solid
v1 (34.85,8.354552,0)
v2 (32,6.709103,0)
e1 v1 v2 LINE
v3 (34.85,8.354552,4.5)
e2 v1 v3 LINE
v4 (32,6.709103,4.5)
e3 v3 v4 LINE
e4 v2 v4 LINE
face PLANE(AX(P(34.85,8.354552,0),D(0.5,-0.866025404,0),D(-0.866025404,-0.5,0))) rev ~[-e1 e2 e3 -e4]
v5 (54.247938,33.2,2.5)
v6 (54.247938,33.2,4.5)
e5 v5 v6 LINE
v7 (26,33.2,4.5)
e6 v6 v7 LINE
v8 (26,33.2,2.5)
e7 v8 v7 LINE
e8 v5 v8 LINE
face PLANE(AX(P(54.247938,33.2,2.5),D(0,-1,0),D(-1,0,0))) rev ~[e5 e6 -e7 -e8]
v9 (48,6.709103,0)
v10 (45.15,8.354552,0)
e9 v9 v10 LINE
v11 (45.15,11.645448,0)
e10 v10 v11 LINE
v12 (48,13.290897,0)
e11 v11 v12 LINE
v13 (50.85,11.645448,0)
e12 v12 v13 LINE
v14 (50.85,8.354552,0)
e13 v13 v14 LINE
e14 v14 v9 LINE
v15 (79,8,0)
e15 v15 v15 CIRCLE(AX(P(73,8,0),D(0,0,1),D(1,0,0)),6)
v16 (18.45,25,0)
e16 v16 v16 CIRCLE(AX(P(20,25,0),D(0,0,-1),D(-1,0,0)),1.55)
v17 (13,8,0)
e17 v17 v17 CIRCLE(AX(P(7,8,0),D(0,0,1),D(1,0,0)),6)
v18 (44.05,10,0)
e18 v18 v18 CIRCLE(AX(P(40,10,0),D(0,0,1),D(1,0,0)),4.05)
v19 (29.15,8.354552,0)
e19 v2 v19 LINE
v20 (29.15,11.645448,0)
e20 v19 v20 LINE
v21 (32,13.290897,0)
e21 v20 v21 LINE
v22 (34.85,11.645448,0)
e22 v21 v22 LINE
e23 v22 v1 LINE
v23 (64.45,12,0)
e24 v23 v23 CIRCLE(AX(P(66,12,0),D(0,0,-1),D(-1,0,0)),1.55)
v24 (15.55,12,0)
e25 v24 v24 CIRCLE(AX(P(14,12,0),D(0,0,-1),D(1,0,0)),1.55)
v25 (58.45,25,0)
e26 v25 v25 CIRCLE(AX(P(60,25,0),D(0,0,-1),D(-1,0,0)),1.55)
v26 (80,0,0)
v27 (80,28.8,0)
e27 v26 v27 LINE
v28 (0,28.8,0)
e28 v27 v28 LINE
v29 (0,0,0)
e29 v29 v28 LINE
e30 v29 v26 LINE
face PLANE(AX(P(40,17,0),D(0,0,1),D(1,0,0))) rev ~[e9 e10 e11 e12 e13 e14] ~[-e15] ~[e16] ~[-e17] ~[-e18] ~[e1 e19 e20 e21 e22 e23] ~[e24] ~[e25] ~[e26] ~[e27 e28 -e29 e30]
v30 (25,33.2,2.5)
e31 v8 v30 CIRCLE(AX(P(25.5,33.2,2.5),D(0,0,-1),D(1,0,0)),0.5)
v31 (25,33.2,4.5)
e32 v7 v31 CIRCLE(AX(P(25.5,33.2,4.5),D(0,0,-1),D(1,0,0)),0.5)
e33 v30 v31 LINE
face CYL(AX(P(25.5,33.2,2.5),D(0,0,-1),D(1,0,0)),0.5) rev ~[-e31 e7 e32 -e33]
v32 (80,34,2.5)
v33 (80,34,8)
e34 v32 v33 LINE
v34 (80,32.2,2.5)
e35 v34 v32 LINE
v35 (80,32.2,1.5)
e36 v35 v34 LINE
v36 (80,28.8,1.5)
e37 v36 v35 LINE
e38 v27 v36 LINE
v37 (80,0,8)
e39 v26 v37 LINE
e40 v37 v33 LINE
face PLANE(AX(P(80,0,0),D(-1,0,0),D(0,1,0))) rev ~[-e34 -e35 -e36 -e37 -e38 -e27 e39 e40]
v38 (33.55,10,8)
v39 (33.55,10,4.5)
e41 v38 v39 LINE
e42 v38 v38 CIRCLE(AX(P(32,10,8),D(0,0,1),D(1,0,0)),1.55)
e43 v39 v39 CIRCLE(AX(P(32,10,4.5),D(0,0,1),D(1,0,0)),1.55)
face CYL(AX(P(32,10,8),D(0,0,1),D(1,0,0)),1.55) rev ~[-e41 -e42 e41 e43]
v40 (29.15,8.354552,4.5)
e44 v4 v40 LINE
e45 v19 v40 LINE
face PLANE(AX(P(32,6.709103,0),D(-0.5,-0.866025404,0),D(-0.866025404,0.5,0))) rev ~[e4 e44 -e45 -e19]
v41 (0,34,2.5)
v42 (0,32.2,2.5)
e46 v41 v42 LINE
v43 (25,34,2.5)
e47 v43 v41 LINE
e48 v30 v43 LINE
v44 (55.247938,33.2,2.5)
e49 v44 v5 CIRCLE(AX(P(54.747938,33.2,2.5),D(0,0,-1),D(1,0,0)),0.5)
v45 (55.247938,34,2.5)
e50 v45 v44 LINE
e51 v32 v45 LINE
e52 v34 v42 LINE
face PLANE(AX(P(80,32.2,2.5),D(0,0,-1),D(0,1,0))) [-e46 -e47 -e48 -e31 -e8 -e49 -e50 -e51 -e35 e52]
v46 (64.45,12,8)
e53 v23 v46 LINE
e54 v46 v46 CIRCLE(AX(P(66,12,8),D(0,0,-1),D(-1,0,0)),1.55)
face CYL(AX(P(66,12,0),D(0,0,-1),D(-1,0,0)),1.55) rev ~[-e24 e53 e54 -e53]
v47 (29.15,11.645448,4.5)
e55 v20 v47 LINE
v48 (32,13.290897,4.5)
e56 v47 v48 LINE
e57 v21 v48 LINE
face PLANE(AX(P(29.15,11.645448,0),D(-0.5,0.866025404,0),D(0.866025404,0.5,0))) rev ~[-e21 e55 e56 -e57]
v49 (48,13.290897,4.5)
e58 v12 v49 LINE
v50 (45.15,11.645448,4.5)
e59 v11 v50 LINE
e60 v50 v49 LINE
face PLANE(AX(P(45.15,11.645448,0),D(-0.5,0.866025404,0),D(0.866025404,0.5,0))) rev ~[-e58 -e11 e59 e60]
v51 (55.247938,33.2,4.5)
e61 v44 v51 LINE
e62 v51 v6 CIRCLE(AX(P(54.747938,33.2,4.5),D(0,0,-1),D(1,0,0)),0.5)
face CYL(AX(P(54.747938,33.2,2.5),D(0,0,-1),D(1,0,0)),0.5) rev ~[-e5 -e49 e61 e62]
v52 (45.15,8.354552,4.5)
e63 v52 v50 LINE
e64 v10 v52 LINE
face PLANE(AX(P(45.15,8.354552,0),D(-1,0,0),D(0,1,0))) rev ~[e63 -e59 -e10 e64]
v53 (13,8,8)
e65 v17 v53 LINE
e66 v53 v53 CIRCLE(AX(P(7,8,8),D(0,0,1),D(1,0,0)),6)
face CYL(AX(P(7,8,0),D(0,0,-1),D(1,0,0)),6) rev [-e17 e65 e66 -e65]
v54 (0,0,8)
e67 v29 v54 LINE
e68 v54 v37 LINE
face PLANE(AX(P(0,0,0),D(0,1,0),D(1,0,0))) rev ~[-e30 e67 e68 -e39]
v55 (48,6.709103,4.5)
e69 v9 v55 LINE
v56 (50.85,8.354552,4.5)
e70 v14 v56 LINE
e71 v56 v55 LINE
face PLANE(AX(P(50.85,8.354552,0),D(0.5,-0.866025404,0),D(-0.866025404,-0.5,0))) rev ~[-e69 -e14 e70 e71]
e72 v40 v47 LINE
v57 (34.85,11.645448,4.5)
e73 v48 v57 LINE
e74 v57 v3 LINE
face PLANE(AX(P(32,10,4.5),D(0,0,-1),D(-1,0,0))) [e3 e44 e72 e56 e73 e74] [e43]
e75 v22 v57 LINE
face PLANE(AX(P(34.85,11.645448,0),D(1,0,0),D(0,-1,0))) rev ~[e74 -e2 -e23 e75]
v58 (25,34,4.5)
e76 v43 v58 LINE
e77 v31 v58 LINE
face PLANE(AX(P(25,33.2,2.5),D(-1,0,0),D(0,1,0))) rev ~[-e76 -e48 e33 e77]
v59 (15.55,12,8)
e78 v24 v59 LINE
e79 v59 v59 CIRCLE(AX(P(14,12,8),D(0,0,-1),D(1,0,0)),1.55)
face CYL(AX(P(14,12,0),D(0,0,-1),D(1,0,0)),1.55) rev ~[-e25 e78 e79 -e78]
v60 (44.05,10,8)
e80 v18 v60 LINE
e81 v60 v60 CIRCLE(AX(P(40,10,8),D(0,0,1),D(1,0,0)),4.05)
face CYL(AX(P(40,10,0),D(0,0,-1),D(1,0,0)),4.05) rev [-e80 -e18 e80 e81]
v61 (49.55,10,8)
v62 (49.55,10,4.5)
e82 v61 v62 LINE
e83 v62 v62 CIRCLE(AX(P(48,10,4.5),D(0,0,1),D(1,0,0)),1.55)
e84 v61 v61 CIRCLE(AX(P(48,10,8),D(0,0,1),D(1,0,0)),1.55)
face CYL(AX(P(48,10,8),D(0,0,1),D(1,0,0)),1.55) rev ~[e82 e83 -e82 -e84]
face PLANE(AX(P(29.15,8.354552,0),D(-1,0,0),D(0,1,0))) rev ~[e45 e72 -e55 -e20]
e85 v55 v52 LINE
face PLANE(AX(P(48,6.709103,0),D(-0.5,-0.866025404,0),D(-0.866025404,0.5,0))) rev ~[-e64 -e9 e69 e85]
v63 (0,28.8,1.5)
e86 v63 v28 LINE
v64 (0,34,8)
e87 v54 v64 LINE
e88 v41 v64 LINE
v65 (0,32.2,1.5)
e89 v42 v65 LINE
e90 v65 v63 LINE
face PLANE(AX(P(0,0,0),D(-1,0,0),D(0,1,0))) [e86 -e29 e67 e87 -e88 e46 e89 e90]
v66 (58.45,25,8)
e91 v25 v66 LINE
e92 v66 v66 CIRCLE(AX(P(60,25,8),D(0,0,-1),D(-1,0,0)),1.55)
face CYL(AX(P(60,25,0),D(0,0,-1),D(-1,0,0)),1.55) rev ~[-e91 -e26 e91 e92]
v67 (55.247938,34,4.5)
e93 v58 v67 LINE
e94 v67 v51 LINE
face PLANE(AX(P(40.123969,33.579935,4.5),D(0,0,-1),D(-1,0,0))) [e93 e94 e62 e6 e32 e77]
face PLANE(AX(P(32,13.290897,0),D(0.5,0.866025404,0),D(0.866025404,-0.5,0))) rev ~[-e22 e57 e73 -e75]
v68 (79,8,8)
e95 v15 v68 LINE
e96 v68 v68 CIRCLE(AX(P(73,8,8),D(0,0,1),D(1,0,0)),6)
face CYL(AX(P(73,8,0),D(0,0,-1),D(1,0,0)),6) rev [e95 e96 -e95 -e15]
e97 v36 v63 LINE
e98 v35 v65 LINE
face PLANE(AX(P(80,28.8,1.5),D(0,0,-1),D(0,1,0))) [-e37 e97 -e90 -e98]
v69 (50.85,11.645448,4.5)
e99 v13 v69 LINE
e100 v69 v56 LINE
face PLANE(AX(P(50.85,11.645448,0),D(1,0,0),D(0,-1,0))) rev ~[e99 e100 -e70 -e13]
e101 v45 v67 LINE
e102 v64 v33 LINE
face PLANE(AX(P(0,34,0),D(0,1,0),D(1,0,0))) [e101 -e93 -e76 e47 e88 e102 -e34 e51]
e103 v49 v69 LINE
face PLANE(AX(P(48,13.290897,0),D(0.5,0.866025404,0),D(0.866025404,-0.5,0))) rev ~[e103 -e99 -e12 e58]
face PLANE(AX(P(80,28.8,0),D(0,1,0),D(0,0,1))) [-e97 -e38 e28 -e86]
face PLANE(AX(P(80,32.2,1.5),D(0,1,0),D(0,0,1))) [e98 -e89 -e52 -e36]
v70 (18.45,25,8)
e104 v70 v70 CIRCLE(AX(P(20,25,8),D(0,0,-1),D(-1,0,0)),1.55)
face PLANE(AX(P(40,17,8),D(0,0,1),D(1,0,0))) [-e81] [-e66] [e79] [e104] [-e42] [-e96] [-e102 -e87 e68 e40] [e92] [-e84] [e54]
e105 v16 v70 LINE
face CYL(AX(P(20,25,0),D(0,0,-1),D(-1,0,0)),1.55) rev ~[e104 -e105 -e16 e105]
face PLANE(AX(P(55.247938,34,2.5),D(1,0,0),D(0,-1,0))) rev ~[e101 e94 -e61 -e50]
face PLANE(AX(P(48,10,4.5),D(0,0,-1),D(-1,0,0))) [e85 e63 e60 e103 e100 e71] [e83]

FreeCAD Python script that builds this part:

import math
import FreeCAD as App
import Part
import Sketcher

V = App.Vector
Q = App.Units.Quantity

doc = App.newDocument("Part")
body = doc.addObject("PartDesign::Body", "Body")

sketch1 = doc.addObject("Sketcher::SketchObject", "Sketch")
body.addObject(sketch1)
sketch1.AttachmentSupport = (doc.XY_Plane, [""])
sketch1.MapMode = "FlatFace"
sketch1.addGeometry([
    Part.LineSegment(V(0, 34, 0), V(0, 0, 0)),
    Part.LineSegment(V(0, 0, 0), V(80, 0, 0)),
    Part.LineSegment(V(80, 0, 0), V(80, 34, 0)),
    Part.LineSegment(V(80, 34, 0), V(0, 34, 0)),
    Part.Circle(V(7, 8, 0), V(0, 0, 1), 6),
    Part.Circle(V(73, 8, 0), V(0, 0, 1), 6),
    Part.Circle(V(40, 10, 0), V(0, 0, 1), 4),
], False)
sketch1.addConstraint([
    Sketcher.Constraint("Coincident", 0, 2, 1, 1),
    Sketcher.Constraint("Coincident", 1, 2, 2, 1),
    Sketcher.Constraint("Coincident", 2, 2, 3, 1),
    Sketcher.Constraint("Coincident", 3, 2, 0, 1),
    Sketcher.Constraint("Vertical", 0),
    Sketcher.Constraint("Horizontal", 1),
    Sketcher.Constraint("Vertical", 2),
    Sketcher.Constraint("Horizontal", 3),
    Sketcher.Constraint("Coincident", 0, 2, -1, 1),
    Sketcher.Constraint("Equal", 4, 5),
    Sketcher.Constraint("Horizontal", 4, 3, 5, 3),
    Sketcher.Constraint("Diameter", 4, Q("12 mm")),
    Sketcher.Constraint("Diameter", 6, Q("8.1 mm")),
    Sketcher.Constraint("DistanceX", 1, 1, 1, 2, Q("80 mm")),
    Sketcher.Constraint("DistanceY", 0, 2, 0, 1, Q("34 mm")),
    Sketcher.Constraint("DistanceX", -1, 1, 4, 3, Q("7 mm")),
    Sketcher.Constraint("DistanceY", -1, 1, 4, 3, Q("8 mm")),
    Sketcher.Constraint("DistanceX", -1, 1, 5, 3, Q("73 mm")),
    Sketcher.Constraint("DistanceX", -1, 1, 6, 3, Q("40 mm")),
    Sketcher.Constraint("DistanceY", -1, 1, 6, 3, Q("10 mm")),
])
pad1 = doc.addObject("PartDesign::Pad", "Pad")
body.addObject(pad1)
pad1.Profile = sketch1
pad1.Length = 8

sketch2 = doc.addObject("Sketcher::SketchObject", "Sketch001")
body.addObject(sketch2)
sketch2.AttachmentSupport = (doc.YZ_Plane, [""])
sketch2.MapMode = "FlatFace"
sketch2.AttachmentOffset = App.Placement(V(0, 0, 80), App.Rotation())
sketch2.addGeometry([
    Part.LineSegment(V(32.2, 2.5, 0), V(32.2, 1.5, 0)),
    Part.LineSegment(V(32.2, 1.5, 0), V(28.8, 1.5, 0)),
    Part.LineSegment(V(28.8, 1.5, 0), V(28.8, 0, 0)),
    Part.LineSegment(V(28.8, 0, 0), V(34, 0, 0)),
    Part.LineSegment(V(34, 0, 0), V(34, 2.5, 0)),
    Part.LineSegment(V(34, 2.5, 0), V(32.2, 2.5, 0)),
], False)
sketch2.addConstraint([
    Sketcher.Constraint("Coincident", 0, 2, 1, 1),
    Sketcher.Constraint("Coincident", 1, 2, 2, 1),
    Sketcher.Constraint("Coincident", 2, 2, 3, 1),
    Sketcher.Constraint("Coincident", 3, 2, 4, 1),
    Sketcher.Constraint("Coincident", 4, 2, 5, 1),
    Sketcher.Constraint("Coincident", 5, 2, 0, 1),
    Sketcher.Constraint("Vertical", 0),
    Sketcher.Constraint("Horizontal", 1),
    Sketcher.Constraint("Vertical", 2),
    Sketcher.Constraint("Horizontal", 3),
    Sketcher.Constraint("Vertical", 4),
    Sketcher.Constraint("Horizontal", 5),
    Sketcher.Constraint("PointOnObject", 2, 2, -1),
    Sketcher.Constraint("DistanceY", 0, 2, 0, 1, Q("1 mm")),
    Sketcher.Constraint("DistanceX", 1, 2, 1, 1, Q("3.4 mm")),
    Sketcher.Constraint("DistanceX", 3, 1, 3, 2, Q("5.2 mm")),
    Sketcher.Constraint("DistanceY", 2, 2, 2, 1, Q("1.5 mm")),
    Sketcher.Constraint("DistanceX", -1, 1, 3, 2, Q("34 mm")),
])
pocket1 = doc.addObject("PartDesign::Pocket", "Pocket")
body.addObject(pocket1)
pocket1.Profile = sketch2
pocket1.Type = "ThroughAll"

sketch3 = doc.addObject("Sketcher::SketchObject", "Sketch002")
body.addObject(sketch3)
sketch3.AttachmentSupport = (doc.XY_Plane, [""])
sketch3.MapMode = "FlatFace"
sketch3.AttachmentOffset = App.Placement(V(0, 0, 8), App.Rotation())
sketch3.addGeometry([
    Part.Circle(V(48, 10, 0), V(0, 0, 1), 1.6),
    Part.Circle(V(32, 10, 0), V(0, 0, 1), 1.6),
], False)
sketch3.addConstraint([
    Sketcher.Constraint("Equal", 0, 1),
    Sketcher.Constraint("Horizontal", 0, 3, 1, 3),
    Sketcher.Constraint("Diameter", 0, Q("3.1 mm")),
    Sketcher.Constraint("DistanceX", -1, 1, 0, 3, Q("48 mm")),
    Sketcher.Constraint("DistanceY", -1, 1, 0, 3, Q("10 mm")),
    Sketcher.Constraint("DistanceX", -1, 1, 1, 3, Q("32 mm")),
])
pocket2 = doc.addObject("PartDesign::Pocket", "Pocket001")
body.addObject(pocket2)
pocket2.Profile = sketch3
pocket2.Type = "ThroughAll"

sketch4 = doc.addObject("Sketcher::SketchObject", "Sketch003")
body.addObject(sketch4)
sketch4.AttachmentSupport = (doc.XY_Plane, [""])
sketch4.MapMode = "FlatFace"
sketch4.addGeometry([
    Part.LineSegment(V(45.1, 8.4, 0), V(45.1, 11.6, 0)),
    Part.LineSegment(V(45.1, 11.6, 0), V(48, 13.3, 0)),
    Part.LineSegment(V(48, 13.3, 0), V(50.9, 11.6, 0)),
    Part.LineSegment(V(50.9, 11.6, 0), V(50.9, 8.4, 0)),
    Part.LineSegment(V(50.9, 8.4, 0), V(48, 6.7, 0)),
    Part.LineSegment(V(48, 6.7, 0), V(45.1, 8.4, 0)),
    Part.LineSegment(V(34.9, 8.4, 0), V(32, 6.7, 0)),
    Part.LineSegment(V(32, 6.7, 0), V(29.1, 8.4, 0)),
    Part.LineSegment(V(29.1, 8.4, 0), V(29.1, 11.6, 0)),
    Part.LineSegment(V(29.1, 11.6, 0), V(32, 13.3, 0)),
    Part.LineSegment(V(32, 13.3, 0), V(34.9, 11.6, 0)),
    Part.LineSegment(V(34.9, 11.6, 0), V(34.9, 8.4, 0)),
], False)
sketch4.addConstraint([
    Sketcher.Constraint("Coincident", 0, 2, 1, 1),
    Sketcher.Constraint("Coincident", 1, 2, 2, 1),
    Sketcher.Constraint("Coincident", 2, 2, 3, 1),
    Sketcher.Constraint("Coincident", 3, 2, 4, 1),
    Sketcher.Constraint("Coincident", 4, 2, 5, 1),
    Sketcher.Constraint("Coincident", 5, 2, 0, 1),
    Sketcher.Constraint("Coincident", 6, 2, 7, 1),
    Sketcher.Constraint("Coincident", 7, 2, 8, 1),
    Sketcher.Constraint("Coincident", 8, 2, 9, 1),
    Sketcher.Constraint("Coincident", 9, 2, 10, 1),
    Sketcher.Constraint("Coincident", 10, 2, 11, 1),
    Sketcher.Constraint("Coincident", 11, 2, 6, 1),
    Sketcher.Constraint("Vertical", 0),
    Sketcher.Constraint("Vertical", 3),
    Sketcher.Constraint("Vertical", 8),
    Sketcher.Constraint("Vertical", 11),
    Sketcher.Constraint("Parallel", 1, 4),
    Sketcher.Constraint("Parallel", 2, 5),
    Sketcher.Constraint("Parallel", 4, 6),
    Sketcher.Constraint("Parallel", 5, 7),
    Sketcher.Constraint("Parallel", 6, 9),
    Sketcher.Constraint("Parallel", 7, 10),
    Sketcher.Constraint("Horizontal", 0, 2, 2, 2),
    Sketcher.Constraint("Horizontal", 3, 2, 5, 2),
    Sketcher.Constraint("Horizontal", 4, 2, 6, 2),
    Sketcher.Constraint("Horizontal", 5, 2, 7, 2),
    Sketcher.Constraint("Horizontal", 2, 2, 8, 2),
    Sketcher.Constraint("Horizontal", 1, 2, 9, 2),
    Sketcher.Constraint("Horizontal", 8, 2, 10, 2),
    Sketcher.Constraint("Vertical", 1, 2, 4, 2),
    Sketcher.Constraint("Angle", 1, Q("30 deg")),
    Sketcher.Constraint("DistanceX", -1, 1, 1, 2, Q("48 mm")),
    Sketcher.Constraint("DistanceX", -1, 1, 6, 2, Q("32 mm")),
    Sketcher.Constraint("DistanceX", 0, 2, 2, 2, Q("5.7 mm")),
    Sketcher.Constraint("DistanceY", 0, 1, 0, 2, Q("3.290897 mm")),
    Sketcher.Constraint("DistanceY", -1, 1, 0, 2, Q("11.645448 mm")),
])
pocket3 = doc.addObject("PartDesign::Pocket", "Pocket002")
body.addObject(pocket3)
pocket3.Profile = sketch4
pocket3.Length = 4.5
pocket3.Reversed = True

sketch5 = doc.addObject("Sketcher::SketchObject", "Sketch004")
body.addObject(sketch5)
sketch5.AttachmentSupport = (doc.XY_Plane, [""])
sketch5.MapMode = "FlatFace"
sketch5.addGeometry([
    Part.Circle(V(60, 25, 0), V(0, 0, 1), 1.6),
    Part.Circle(V(20, 25, 0), V(0, 0, 1), 1.6),
], False)
sketch5.addConstraint([
    Sketcher.Constraint("Equal", 0, 1),
    Sketcher.Constraint("Horizontal", 0, 3, 1, 3),
    Sketcher.Constraint("Diameter", 0, Q("3.1 mm")),
    Sketcher.Constraint("DistanceX", -1, 1, 0, 3, Q("60 mm")),
    Sketcher.Constraint("DistanceY", -1, 1, 0, 3, Q("25 mm")),
    Sketcher.Constraint("DistanceX", -1, 1, 1, 3, Q("20 mm")),
])
pocket4 = doc.addObject("PartDesign::Pocket", "Pocket003")
body.addObject(pocket4)
pocket4.Profile = sketch5
pocket4.Type = "ThroughAll"
pocket4.Reversed = True

sketch6 = doc.addObject("Sketcher::SketchObject", "Sketch005")
body.addObject(sketch6)
sketch6.AttachmentSupport = (doc.XY_Plane, [""])
sketch6.MapMode = "FlatFace"
sketch6.AttachmentOffset = App.Placement(V(0, 0, 2.5), App.Rotation())
sketch6.addGeometry([
    Part.LineSegment(V(25, 34, 0), V(55.2, 34, 0)),
    Part.LineSegment(V(55.2, 34, 0), V(55.2, 33.2, 0)),
    Part.ArcOfCircle(Part.Circle(V(54.7, 33.2, 0), V(0, 0, 1), 0.5), math.radians(180), math.radians(360)),
    Part.LineSegment(V(54.2, 33.2, 0), V(26, 33.2, 0)),
    Part.ArcOfCircle(Part.Circle(V(25.5, 33.2, 0), V(0, 0, 1), 0.5), math.radians(180), math.radians(360)),
    Part.LineSegment(V(25, 33.2, 0), V(25, 34, 0)),
], False)
sketch6.addConstraint([
    Sketcher.Constraint("Coincident", 0, 2, 1, 1),
    Sketcher.Constraint("Tangent", 1, 2, 2, 2),
    Sketcher.Constraint("Coincident", 2, 1, 3, 1),
    Sketcher.Constraint("Coincident", 3, 2, 4, 2),
    Sketcher.Constraint("Tangent", 4, 1, 5, 1),
    Sketcher.Constraint("Coincident", 5, 2, 0, 1),
    Sketcher.Constraint("Horizontal", 0),
    Sketcher.Constraint("Vertical", 1),
    Sketcher.Constraint("Horizontal", 3),
    Sketcher.Constraint("Vertical", 5),
    Sketcher.Constraint("Equal", 2, 4),
    Sketcher.Constraint("Horizontal", 2, 3, 4, 3),
    Sketcher.Constraint("Horizontal", 1, 2, 2, 1),
    Sketcher.Constraint("Radius", 2, Q("0.5 mm")),
    Sketcher.Constraint("DistanceY", 1, 2, 1, 1, Q("0.8 mm")),
    Sketcher.Constraint("DistanceY", -1, 1, 0, 2, Q("34 mm")),
    Sketcher.Constraint("DistanceX", -1, 1, 3, 2, Q("26 mm")),
    Sketcher.Constraint("DistanceX", 0, 1, 0, 2, Q("30.247938 mm")),
])
pocket5 = doc.addObject("PartDesign::Pocket", "Pocket004")
body.addObject(pocket5)
pocket5.Profile = sketch6
pocket5.Length = 2
pocket5.Reversed = True

sketch7 = doc.addObject("Sketcher::SketchObject", "Sketch006")
body.addObject(sketch7)
sketch7.AttachmentSupport = (doc.XY_Plane, [""])
sketch7.MapMode = "FlatFace"
sketch7.addGeometry([
    Part.Circle(V(66, 12, 0), V(0, 0, 1), 1.6),
    Part.Circle(V(14, 12, 0), V(0, 0, 1), 1.6),
], False)
sketch7.addConstraint([
    Sketcher.Constraint("Equal", 0, 1),
    Sketcher.Constraint("Horizontal", 0, 3, 1, 3),
    Sketcher.Constraint("Diameter", 0, Q("3.1 mm")),
    Sketcher.Constraint("DistanceX", -1, 1, 0, 3, Q("66 mm")),
    Sketcher.Constraint("DistanceY", -1, 1, 0, 3, Q("12 mm")),
    Sketcher.Constraint("DistanceX", -1, 1, 1, 3, Q("14 mm")),
])
pocket6 = doc.addObject("PartDesign::Pocket", "Pocket005")
body.addObject(pocket6)
pocket6.Profile = sketch7
pocket6.Type = "ThroughAll"
pocket6.Reversed = True

doc.recompute()
